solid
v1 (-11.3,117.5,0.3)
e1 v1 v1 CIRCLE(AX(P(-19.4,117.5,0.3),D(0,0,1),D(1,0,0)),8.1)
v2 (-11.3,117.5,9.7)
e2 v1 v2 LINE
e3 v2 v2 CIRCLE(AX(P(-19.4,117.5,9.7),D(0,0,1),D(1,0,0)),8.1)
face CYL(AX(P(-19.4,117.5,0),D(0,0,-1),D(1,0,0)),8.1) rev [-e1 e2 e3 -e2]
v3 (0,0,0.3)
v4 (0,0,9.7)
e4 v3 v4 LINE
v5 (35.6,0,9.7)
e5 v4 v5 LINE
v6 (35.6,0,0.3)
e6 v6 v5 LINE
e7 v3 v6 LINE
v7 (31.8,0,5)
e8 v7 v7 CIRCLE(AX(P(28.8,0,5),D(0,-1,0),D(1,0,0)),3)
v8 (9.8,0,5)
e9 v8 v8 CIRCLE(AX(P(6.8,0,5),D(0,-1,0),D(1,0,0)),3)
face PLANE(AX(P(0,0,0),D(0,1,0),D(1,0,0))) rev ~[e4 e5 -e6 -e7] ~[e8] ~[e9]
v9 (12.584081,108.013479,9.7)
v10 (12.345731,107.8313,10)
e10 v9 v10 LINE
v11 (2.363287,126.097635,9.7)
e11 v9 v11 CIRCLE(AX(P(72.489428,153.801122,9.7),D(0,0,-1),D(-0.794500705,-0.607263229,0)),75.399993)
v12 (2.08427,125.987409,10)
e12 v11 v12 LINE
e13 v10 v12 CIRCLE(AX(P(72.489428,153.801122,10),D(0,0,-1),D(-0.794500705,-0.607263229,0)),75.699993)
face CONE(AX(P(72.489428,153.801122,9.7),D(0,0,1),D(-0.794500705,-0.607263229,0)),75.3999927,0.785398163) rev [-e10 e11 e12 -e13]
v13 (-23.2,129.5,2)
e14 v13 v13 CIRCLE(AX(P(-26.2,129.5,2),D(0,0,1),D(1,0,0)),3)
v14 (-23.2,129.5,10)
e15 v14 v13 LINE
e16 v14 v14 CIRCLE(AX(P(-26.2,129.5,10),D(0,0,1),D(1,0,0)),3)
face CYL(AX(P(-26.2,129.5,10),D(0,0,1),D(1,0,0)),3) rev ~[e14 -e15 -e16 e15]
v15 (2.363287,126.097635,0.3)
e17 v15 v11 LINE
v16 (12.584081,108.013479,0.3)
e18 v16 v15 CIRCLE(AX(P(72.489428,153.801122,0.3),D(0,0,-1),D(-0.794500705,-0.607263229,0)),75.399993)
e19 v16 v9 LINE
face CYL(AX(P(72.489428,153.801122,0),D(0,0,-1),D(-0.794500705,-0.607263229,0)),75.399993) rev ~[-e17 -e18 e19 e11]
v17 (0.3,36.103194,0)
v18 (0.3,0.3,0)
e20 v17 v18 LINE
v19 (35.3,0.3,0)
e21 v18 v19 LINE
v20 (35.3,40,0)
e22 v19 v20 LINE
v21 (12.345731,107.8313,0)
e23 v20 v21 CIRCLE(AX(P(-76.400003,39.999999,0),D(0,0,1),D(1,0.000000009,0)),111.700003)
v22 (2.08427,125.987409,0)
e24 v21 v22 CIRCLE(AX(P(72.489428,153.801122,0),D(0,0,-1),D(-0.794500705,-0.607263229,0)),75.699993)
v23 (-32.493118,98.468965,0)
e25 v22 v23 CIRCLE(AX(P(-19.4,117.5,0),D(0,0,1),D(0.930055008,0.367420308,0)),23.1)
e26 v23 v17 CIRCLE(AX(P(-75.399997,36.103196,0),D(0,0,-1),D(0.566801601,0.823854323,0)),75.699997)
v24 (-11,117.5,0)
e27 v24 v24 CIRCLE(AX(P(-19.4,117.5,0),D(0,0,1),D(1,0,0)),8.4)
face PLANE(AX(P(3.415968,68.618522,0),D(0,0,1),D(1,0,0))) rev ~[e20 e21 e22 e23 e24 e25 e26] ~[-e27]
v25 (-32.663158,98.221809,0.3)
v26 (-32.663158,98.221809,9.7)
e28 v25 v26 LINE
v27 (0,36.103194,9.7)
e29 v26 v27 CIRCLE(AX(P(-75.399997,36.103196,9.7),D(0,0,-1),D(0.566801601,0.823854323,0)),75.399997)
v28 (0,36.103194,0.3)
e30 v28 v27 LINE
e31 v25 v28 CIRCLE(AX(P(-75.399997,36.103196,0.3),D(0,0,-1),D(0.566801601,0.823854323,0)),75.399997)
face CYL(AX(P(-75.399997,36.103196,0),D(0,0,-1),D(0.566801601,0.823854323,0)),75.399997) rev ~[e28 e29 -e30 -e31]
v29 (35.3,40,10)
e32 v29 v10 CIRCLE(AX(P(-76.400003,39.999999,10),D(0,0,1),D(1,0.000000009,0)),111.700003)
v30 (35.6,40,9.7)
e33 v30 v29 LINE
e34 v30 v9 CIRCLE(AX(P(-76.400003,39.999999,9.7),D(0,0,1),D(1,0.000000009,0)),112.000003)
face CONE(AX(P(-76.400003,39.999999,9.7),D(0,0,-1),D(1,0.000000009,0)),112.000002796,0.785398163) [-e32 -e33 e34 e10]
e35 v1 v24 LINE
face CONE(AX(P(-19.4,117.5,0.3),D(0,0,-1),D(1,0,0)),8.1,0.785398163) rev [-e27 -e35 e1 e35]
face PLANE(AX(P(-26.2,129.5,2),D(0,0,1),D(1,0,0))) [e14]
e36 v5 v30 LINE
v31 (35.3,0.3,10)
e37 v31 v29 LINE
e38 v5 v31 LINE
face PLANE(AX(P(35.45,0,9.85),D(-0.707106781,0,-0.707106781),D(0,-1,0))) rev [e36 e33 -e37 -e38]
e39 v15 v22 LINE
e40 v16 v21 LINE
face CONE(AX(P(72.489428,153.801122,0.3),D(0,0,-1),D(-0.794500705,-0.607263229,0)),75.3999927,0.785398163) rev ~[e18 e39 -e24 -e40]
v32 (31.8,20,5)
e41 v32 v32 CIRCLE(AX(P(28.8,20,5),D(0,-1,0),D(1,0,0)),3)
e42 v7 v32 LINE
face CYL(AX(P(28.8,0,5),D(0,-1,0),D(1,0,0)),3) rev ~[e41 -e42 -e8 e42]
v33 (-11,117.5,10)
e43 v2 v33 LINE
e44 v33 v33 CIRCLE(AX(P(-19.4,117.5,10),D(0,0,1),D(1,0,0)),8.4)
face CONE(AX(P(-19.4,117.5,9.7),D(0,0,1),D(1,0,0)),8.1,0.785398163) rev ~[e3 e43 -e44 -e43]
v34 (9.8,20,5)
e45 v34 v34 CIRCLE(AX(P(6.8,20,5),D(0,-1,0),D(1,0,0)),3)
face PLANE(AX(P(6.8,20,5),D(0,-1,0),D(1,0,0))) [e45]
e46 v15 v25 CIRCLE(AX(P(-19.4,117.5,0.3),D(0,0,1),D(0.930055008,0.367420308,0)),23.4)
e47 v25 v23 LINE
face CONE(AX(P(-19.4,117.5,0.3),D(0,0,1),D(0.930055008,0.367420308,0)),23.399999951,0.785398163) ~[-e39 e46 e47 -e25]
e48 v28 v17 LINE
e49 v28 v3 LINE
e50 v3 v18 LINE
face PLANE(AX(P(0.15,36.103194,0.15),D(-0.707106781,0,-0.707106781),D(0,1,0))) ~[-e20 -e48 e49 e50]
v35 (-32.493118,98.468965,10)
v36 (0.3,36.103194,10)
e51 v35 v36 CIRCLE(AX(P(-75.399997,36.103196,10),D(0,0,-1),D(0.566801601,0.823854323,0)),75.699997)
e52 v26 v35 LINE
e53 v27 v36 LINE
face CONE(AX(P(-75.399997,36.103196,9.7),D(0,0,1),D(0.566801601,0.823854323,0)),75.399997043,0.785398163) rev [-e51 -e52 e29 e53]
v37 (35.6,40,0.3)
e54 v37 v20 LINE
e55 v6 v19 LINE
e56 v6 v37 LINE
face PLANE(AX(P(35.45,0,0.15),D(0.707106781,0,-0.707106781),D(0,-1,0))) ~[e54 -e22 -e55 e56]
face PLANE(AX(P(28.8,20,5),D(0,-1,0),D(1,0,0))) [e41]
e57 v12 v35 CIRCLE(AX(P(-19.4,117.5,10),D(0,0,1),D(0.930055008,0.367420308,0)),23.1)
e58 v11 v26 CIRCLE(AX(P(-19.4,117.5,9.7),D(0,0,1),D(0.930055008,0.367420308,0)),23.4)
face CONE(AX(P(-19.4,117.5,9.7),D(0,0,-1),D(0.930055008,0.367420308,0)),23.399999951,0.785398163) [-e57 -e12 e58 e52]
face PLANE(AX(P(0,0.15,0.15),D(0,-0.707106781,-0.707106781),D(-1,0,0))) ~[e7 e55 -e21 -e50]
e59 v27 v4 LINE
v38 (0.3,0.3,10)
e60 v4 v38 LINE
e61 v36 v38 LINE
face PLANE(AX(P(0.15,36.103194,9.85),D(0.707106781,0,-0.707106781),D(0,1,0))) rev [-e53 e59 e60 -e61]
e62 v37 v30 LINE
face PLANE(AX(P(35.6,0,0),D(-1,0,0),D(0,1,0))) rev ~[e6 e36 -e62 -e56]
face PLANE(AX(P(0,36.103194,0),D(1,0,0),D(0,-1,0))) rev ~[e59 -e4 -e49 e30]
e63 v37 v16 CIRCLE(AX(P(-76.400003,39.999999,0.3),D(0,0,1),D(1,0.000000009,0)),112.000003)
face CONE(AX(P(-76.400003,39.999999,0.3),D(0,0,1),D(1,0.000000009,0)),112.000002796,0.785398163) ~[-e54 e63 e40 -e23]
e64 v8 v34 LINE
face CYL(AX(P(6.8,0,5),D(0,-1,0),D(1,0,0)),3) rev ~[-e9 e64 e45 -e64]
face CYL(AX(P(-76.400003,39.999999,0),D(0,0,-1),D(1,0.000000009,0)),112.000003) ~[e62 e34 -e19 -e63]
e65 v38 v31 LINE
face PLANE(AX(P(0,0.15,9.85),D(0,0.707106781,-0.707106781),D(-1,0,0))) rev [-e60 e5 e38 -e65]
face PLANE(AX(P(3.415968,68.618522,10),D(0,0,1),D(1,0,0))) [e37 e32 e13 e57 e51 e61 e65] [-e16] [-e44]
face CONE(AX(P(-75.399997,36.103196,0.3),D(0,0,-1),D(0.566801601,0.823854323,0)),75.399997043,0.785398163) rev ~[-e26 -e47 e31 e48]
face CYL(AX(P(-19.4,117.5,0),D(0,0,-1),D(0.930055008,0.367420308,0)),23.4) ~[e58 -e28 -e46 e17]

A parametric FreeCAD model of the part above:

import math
import FreeCAD as App
import Part
import Sketcher

V = App.Vector
Q = App.Units.Quantity


def edges_at(feature, points):
    """Names of the edges that pass closest to the given points."""
    edges = feature.Shape.Edges
    near = lambda p: min(range(len(edges)), key=lambda i: edges[i].distToShape(Part.Vertex(*p))[0])
    return sorted({f"Edge{near(p) + 1}" for p in points})

doc = App.newDocument("Part")
body = doc.addObject("PartDesign::Body", "Body")

# Sketch on XY plane
sketch1 = body.newObject("Sketcher::SketchObject", "Sketch")
sketch1.AttachmentSupport = (doc.getObject("XY_Plane"), [""])
sketch1.MapMode = "FlatFace"
sketch1.addGeometry(Part.LineSegment(V(0, 36, 0), V(0, 0, 0)), False)
sketch1.addGeometry(Part.LineSegment(V(0, 0, 0), V(36, 0, 0)), False)
sketch1.addGeometry(Part.LineSegment(V(36, 0, 0), V(36, 40, 0)), False)
sketch1.addGeometry(Part.ArcOfCircle(Part.Circle(V(-76, 40, 0), V(0, 0, 1), 112), math.radians(0), math.radians(37)), False)
sketch1.addGeometry(Part.ArcOfCircle(Part.Circle(V(72, 154, 0), V(0, 0, 1), 75), math.radians(-158.44), math.radians(-142.61)), False)
sketch1.addGeometry(Part.ArcOfCircle(Part.Circle(V(-19, 117, 0), V(0, 0, 1), 23), math.radians(22), math.radians(235)), False)
sketch1.addGeometry(Part.ArcOfCircle(Part.Circle(V(-75, 36, 0), V(0, 0, 1), 75), math.radians(0), math.radians(55)), False)
sketch1.addGeometry(Part.Circle(V(-19, 118, 0), V(0, 0, 1), 8), False)
sketch1.addConstraint(Sketcher.Constraint("Coincident", 0, 2, 1, 1))
sketch1.addConstraint(Sketcher.Constraint("Coincident", 1, 2, 2, 1))
sketch1.addConstraint(Sketcher.Constraint("Tangent", 2, 2, 3, 1))
sketch1.addConstraint(Sketcher.Constraint("Tangent", 3, 2, 4, 2))
sketch1.addConstraint(Sketcher.Constraint("Tangent", 4, 1, 5, 1))
sketch1.addConstraint(Sketcher.Constraint("Tangent", 5, 2, 6, 2))
sketch1.addConstraint(Sketcher.Constraint("Tangent", 6, 1, 0, 1))
sketch1.addConstraint(Sketcher.Constraint("Vertical", 0))
sketch1.addConstraint(Sketcher.Constraint("Horizontal", 1))
sketch1.addConstraint(Sketcher.Constraint("Vertical", 2))
sketch1.addConstraint(Sketcher.Constraint("Coincident", 0, 2, -1, 1))
sketch1.addConstraint(Sketcher.Constraint("Coincident", 7, 3, 5, 3))
sketch1.addConstraint(Sketcher.Constraint("Diameter", 7, Q("16.2 mm")))
sketch1.addConstraint(Sketcher.Constraint("Radius", 5, Q("23.4 mm")))
sketch1.addConstraint(Sketcher.Constraint("DistanceY", 2, 1, 2, 2, Q("40 mm")))
sketch1.addConstraint(Sketcher.Constraint("DistanceX", 1, 1, 1, 2, Q("35.6 mm")))
sketch1.addConstraint(Sketcher.Constraint("DistanceX", 5, 3, 1, 2, Q("55 mm")))
sketch1.addConstraint(Sketcher.Constraint("DistanceY", -1, 1, 5, 3, Q("117.5 mm")))
sketch1.addConstraint(Sketcher.Constraint("Radius", 3, Q("112.000003 mm")))
sketch1.addConstraint(Sketcher.Constraint("Radius", 4, Q("75.399993 mm")))
sketch1.addConstraint(Sketcher.Constraint("Radius", 6, Q("75.399997 mm")))
pad1 = body.newObject("PartDesign::Pad", "Pad")
pad1.Profile = sketch1
pad1.Length = 10
doc.recompute()

chamfer = body.newObject("PartDesign::Chamfer", "Chamfer")
chamfer.Base = (pad1, edges_at(pad1, [
    (17.8, 0, 10),
    (0, 18.052, 10),
    (-27.5, 117.5, 10),
    (29.69, 75.901, 0),
    (-27.5, 117.5, 0),
    (17.8, 0, 0),
]))
chamfer.Size = 0.3

# Sketch on XY plane
sketch2 = body.newObject("Sketcher::SketchObject", "Sketch001")
sketch2.AttachmentSupport = (doc.getObject("XY_Plane"), [""])
sketch2.MapMode = "FlatFace"
sketch2.AttachmentOffset = App.Placement(V(0, 0, 10), App.Rotation())
sketch2.addGeometry(Part.Circle(V(-26.2, 129.5, 0), V(0, 0, 1), 3), False)
sketch2.addConstraint(Sketcher.Constraint("Diameter", 0, Q("6 mm")))
sketch2.addConstraint(Sketcher.Constraint("DistanceX", 0, 3, -1, 1, Q("26.2 mm")))
sketch2.addConstraint(Sketcher.Constraint("DistanceY", -1, 1, 0, 3, Q("129.5 mm")))
pocket1 = body.newObject("PartDesign::Pocket", "Pocket")
pocket1.Profile = sketch2
pocket1.Length = 8

# Sketch on XZ plane
sketch3 = body.newObject("Sketcher::SketchObject", "Sketch002")
sketch3.AttachmentSupport = (doc.getObject("XZ_Plane"), [""])
sketch3.MapMode = "FlatFace"
sketch3.addGeometry(Part.Circle(V(6.8, 5, 0), V(0, 0, 1), 3), False)
sketch3.addGeometry(Part.Circle(V(28.8, 5, 0), V(0, 0, 1), 3), False)
sketch3.addConstraint(Sketcher.Constraint("Equal", 0, 1))
sketch3.addConstraint(Sketcher.Constraint("Horizontal", 0, 3, 1, 3))
sketch3.addConstraint(Sketcher.Constraint("Diameter", 0, Q("6 mm")))
sketch3.addConstraint(Sketcher.Constraint("DistanceY", -1, 1, 0, 3, Q("5 mm")))
sketch3.addConstraint(Sketcher.Constraint("DistanceX", 0, 3, 1, 3, Q("22 mm")))
sketch3.addConstraint(Sketcher.Constraint("DistanceX", -1, 1, 0, 3, Q("6.8 mm")))
pocket2 = body.newObject("PartDesign::Pocket", "Pocket001")
pocket2.Profile = sketch3
pocket2.Length = 20

doc.recompute()
